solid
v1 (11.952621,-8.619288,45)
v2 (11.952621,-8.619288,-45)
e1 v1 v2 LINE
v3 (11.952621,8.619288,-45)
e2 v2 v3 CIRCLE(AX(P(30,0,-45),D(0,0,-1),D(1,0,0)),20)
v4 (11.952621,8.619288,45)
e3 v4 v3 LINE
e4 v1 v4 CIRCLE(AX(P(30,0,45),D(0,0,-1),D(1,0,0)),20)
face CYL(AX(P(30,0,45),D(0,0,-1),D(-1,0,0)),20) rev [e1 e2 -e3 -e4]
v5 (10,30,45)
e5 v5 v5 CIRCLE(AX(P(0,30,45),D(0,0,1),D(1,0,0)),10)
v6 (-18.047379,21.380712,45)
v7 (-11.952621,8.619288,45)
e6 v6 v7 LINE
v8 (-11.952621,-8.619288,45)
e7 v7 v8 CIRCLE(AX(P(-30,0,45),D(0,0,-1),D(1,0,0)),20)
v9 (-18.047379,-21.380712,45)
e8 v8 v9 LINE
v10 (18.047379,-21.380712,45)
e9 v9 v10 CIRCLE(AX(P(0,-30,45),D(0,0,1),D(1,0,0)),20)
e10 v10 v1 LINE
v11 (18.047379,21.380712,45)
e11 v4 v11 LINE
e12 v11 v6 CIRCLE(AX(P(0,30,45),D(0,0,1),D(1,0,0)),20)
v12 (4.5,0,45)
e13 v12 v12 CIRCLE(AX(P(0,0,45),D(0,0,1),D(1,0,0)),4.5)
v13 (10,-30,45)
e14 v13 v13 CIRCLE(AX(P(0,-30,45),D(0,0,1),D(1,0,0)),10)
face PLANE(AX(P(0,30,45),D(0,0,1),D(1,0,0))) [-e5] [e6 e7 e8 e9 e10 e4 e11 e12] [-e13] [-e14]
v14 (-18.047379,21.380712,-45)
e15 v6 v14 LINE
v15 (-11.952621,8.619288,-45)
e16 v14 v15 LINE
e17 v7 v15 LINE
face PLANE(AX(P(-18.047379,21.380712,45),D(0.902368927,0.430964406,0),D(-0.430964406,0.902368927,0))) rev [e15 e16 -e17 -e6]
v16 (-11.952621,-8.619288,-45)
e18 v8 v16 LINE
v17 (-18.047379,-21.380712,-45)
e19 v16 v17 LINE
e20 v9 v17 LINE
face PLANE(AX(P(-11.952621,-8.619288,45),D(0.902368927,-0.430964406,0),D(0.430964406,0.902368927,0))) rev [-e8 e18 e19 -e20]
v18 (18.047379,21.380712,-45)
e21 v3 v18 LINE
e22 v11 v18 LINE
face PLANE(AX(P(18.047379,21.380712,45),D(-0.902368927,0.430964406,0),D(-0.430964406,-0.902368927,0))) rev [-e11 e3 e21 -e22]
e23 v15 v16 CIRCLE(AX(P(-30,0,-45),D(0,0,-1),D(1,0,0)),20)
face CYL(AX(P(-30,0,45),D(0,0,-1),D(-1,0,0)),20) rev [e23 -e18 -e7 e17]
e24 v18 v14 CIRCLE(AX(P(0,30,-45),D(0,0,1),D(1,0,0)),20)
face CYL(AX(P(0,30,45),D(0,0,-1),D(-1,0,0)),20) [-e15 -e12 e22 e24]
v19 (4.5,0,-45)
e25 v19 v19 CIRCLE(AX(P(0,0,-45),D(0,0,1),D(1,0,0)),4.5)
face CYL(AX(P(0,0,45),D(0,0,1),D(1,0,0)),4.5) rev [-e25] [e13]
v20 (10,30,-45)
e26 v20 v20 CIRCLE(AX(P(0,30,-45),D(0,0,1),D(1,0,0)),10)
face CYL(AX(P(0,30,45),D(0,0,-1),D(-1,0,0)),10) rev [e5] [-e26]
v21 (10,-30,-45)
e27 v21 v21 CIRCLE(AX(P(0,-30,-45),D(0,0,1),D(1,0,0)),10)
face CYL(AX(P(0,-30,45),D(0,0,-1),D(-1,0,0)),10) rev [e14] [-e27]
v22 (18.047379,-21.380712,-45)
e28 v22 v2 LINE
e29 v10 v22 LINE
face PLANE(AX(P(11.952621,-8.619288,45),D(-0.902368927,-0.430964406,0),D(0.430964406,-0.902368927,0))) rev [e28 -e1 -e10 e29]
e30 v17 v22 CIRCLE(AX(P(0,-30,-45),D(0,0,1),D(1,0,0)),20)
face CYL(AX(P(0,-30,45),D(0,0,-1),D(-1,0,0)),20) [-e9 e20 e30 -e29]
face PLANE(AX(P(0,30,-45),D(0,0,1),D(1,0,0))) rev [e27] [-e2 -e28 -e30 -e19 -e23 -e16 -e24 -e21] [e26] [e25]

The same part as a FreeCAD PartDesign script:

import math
import FreeCAD as App
import Part
import Sketcher

doc = App.newDocument("Part")
body = doc.addObject("PartDesign::Body", "Body")

sketch1 = body.newObject("Sketcher::SketchObject", "Sketch")
sketch1.AttachmentSupport = (doc.getObject("XY_Plane"), [""])
sketch1.MapMode = "FlatFace"
sketch1.addGeometry(Part.LineSegment(App.Vector(-18, 21, 0), App.Vector(-12, 9, 0)), False)
sketch1.addGeometry(Part.ArcOfCircle(Part.Circle(App.Vector(-30, 0, 0), App.Vector(0, 0, 1), 20), math.radians(-26), math.radians(26)), False)
sketch1.addGeometry(Part.LineSegment(App.Vector(-12, -9, 0), App.Vector(-18, -21, 0)), False)
sketch1.addGeometry(Part.ArcOfCircle(Part.Circle(App.Vector(0, -30, 0), App.Vector(0, 0, 1), 20), math.radians(154), math.radians(386)), False)
sketch1.addGeometry(Part.LineSegment(App.Vector(18, -21, 0), App.Vector(12, -9, 0)), False)
sketch1.addGeometry(Part.ArcOfCircle(Part.Circle(App.Vector(30, 0, 0), App.Vector(0, 0, 1), 20), math.radians(154), math.radians(206)), False)
sketch1.addGeometry(Part.LineSegment(App.Vector(12, 9, 0), App.Vector(18, 21, 0)), False)
sketch1.addGeometry(Part.ArcOfCircle(Part.Circle(App.Vector(0, 30, 0), App.Vector(0, 0, 1), 20), math.radians(-26), math.radians(206)), False)
sketch1.addGeometry(Part.Circle(App.Vector(0, -30, 0), App.Vector(0, 0, 1), 10), False)
sketch1.addGeometry(Part.Circle(App.Vector(0, 30, 0), App.Vector(0, 0, 1), 10), False)
sketch1.addConstraint(Sketcher.Constraint("Tangent", 0, 2, 1, 2))
sketch1.addConstraint(Sketcher.Constraint("Tangent", 1, 1, 2, 1))
sketch1.addConstraint(Sketcher.Constraint("Tangent", 2, 2, 3, 1))
sketch1.addConstraint(Sketcher.Constraint("Tangent", 3, 2, 4, 1))
sketch1.addConstraint(Sketcher.Constraint("Tangent", 4, 2, 5, 2))
sketch1.addConstraint(Sketcher.Constraint("Tangent", 5, 1, 6, 1))
sketch1.addConstraint(Sketcher.Constraint("Tangent", 6, 2, 7, 1))
sketch1.addConstraint(Sketcher.Constraint("Tangent", 7, 2, 0, 1))
sketch1.addConstraint(Sketcher.Constraint("Coincident", 8, 3, 3, 3))
sketch1.addConstraint(Sketcher.Constraint("Coincident", 9, 3, 7, 3))
sketch1.addConstraint(Sketcher.Constraint("Equal", 1, 3))
sketch1.addConstraint(Sketcher.Constraint("Equal", 3, 5))
sketch1.addConstraint(Sketcher.Constraint("Equal", 5, 7))
sketch1.addConstraint(Sketcher.Constraint("Equal", 8, 9))
sketch1.addConstraint(Sketcher.Constraint("Symmetric", 1, 3, 5, 3, -1, 1))
sketch1.addConstraint(Sketcher.Constraint("Symmetric", 3, 3, 7, 3, -1, 1))
sketch1.addConstraint(Sketcher.Constraint("Symmetric", 2, 2, 3, 2, -2))
sketch1.addConstraint(Sketcher.Constraint("Diameter", 8, 20.0))
sketch1.addConstraint(Sketcher.Constraint("Radius", 1, 20.0))
sketch1.addConstraint(Sketcher.Constraint("DistanceX", 1, 3, -1, 1, 30.0))
sketch1.addConstraint(Sketcher.Constraint("DistanceY", 3, 3, -1, 1, 30.0))
pad1 = body.newObject("PartDesign::Pad", "Pad")
pad1.Profile = sketch1
pad1.Length = 90
pad1.Midplane = True

sketch2 = body.newObject("Sketcher::SketchObject", "Sketch001")
sketch2.AttachmentSupport = (doc.getObject("XY_Plane"), [""])
sketch2.MapMode = "FlatFace"
sketch2.AttachmentOffset = App.Placement(App.Vector(0, 0, 45), App.Rotation())
sketch2.addGeometry(Part.Circle(App.Vector(0, 0, 0), App.Vector(0, 0, 1), 4.5), False)
sketch2.addConstraint(Sketcher.Constraint("Coincident", 0, 3, -1, 1))
sketch2.addConstraint(Sketcher.Constraint("Diameter", 0, 9.0))
doc.recompute()
hole = body.newObject("PartDesign::Hole", "Hole")
hole.Profile = sketch2
hole.ThreadType = "None"
hole.Diameter = 9
hole.DepthType = "ThroughAll"

doc.recompute()
